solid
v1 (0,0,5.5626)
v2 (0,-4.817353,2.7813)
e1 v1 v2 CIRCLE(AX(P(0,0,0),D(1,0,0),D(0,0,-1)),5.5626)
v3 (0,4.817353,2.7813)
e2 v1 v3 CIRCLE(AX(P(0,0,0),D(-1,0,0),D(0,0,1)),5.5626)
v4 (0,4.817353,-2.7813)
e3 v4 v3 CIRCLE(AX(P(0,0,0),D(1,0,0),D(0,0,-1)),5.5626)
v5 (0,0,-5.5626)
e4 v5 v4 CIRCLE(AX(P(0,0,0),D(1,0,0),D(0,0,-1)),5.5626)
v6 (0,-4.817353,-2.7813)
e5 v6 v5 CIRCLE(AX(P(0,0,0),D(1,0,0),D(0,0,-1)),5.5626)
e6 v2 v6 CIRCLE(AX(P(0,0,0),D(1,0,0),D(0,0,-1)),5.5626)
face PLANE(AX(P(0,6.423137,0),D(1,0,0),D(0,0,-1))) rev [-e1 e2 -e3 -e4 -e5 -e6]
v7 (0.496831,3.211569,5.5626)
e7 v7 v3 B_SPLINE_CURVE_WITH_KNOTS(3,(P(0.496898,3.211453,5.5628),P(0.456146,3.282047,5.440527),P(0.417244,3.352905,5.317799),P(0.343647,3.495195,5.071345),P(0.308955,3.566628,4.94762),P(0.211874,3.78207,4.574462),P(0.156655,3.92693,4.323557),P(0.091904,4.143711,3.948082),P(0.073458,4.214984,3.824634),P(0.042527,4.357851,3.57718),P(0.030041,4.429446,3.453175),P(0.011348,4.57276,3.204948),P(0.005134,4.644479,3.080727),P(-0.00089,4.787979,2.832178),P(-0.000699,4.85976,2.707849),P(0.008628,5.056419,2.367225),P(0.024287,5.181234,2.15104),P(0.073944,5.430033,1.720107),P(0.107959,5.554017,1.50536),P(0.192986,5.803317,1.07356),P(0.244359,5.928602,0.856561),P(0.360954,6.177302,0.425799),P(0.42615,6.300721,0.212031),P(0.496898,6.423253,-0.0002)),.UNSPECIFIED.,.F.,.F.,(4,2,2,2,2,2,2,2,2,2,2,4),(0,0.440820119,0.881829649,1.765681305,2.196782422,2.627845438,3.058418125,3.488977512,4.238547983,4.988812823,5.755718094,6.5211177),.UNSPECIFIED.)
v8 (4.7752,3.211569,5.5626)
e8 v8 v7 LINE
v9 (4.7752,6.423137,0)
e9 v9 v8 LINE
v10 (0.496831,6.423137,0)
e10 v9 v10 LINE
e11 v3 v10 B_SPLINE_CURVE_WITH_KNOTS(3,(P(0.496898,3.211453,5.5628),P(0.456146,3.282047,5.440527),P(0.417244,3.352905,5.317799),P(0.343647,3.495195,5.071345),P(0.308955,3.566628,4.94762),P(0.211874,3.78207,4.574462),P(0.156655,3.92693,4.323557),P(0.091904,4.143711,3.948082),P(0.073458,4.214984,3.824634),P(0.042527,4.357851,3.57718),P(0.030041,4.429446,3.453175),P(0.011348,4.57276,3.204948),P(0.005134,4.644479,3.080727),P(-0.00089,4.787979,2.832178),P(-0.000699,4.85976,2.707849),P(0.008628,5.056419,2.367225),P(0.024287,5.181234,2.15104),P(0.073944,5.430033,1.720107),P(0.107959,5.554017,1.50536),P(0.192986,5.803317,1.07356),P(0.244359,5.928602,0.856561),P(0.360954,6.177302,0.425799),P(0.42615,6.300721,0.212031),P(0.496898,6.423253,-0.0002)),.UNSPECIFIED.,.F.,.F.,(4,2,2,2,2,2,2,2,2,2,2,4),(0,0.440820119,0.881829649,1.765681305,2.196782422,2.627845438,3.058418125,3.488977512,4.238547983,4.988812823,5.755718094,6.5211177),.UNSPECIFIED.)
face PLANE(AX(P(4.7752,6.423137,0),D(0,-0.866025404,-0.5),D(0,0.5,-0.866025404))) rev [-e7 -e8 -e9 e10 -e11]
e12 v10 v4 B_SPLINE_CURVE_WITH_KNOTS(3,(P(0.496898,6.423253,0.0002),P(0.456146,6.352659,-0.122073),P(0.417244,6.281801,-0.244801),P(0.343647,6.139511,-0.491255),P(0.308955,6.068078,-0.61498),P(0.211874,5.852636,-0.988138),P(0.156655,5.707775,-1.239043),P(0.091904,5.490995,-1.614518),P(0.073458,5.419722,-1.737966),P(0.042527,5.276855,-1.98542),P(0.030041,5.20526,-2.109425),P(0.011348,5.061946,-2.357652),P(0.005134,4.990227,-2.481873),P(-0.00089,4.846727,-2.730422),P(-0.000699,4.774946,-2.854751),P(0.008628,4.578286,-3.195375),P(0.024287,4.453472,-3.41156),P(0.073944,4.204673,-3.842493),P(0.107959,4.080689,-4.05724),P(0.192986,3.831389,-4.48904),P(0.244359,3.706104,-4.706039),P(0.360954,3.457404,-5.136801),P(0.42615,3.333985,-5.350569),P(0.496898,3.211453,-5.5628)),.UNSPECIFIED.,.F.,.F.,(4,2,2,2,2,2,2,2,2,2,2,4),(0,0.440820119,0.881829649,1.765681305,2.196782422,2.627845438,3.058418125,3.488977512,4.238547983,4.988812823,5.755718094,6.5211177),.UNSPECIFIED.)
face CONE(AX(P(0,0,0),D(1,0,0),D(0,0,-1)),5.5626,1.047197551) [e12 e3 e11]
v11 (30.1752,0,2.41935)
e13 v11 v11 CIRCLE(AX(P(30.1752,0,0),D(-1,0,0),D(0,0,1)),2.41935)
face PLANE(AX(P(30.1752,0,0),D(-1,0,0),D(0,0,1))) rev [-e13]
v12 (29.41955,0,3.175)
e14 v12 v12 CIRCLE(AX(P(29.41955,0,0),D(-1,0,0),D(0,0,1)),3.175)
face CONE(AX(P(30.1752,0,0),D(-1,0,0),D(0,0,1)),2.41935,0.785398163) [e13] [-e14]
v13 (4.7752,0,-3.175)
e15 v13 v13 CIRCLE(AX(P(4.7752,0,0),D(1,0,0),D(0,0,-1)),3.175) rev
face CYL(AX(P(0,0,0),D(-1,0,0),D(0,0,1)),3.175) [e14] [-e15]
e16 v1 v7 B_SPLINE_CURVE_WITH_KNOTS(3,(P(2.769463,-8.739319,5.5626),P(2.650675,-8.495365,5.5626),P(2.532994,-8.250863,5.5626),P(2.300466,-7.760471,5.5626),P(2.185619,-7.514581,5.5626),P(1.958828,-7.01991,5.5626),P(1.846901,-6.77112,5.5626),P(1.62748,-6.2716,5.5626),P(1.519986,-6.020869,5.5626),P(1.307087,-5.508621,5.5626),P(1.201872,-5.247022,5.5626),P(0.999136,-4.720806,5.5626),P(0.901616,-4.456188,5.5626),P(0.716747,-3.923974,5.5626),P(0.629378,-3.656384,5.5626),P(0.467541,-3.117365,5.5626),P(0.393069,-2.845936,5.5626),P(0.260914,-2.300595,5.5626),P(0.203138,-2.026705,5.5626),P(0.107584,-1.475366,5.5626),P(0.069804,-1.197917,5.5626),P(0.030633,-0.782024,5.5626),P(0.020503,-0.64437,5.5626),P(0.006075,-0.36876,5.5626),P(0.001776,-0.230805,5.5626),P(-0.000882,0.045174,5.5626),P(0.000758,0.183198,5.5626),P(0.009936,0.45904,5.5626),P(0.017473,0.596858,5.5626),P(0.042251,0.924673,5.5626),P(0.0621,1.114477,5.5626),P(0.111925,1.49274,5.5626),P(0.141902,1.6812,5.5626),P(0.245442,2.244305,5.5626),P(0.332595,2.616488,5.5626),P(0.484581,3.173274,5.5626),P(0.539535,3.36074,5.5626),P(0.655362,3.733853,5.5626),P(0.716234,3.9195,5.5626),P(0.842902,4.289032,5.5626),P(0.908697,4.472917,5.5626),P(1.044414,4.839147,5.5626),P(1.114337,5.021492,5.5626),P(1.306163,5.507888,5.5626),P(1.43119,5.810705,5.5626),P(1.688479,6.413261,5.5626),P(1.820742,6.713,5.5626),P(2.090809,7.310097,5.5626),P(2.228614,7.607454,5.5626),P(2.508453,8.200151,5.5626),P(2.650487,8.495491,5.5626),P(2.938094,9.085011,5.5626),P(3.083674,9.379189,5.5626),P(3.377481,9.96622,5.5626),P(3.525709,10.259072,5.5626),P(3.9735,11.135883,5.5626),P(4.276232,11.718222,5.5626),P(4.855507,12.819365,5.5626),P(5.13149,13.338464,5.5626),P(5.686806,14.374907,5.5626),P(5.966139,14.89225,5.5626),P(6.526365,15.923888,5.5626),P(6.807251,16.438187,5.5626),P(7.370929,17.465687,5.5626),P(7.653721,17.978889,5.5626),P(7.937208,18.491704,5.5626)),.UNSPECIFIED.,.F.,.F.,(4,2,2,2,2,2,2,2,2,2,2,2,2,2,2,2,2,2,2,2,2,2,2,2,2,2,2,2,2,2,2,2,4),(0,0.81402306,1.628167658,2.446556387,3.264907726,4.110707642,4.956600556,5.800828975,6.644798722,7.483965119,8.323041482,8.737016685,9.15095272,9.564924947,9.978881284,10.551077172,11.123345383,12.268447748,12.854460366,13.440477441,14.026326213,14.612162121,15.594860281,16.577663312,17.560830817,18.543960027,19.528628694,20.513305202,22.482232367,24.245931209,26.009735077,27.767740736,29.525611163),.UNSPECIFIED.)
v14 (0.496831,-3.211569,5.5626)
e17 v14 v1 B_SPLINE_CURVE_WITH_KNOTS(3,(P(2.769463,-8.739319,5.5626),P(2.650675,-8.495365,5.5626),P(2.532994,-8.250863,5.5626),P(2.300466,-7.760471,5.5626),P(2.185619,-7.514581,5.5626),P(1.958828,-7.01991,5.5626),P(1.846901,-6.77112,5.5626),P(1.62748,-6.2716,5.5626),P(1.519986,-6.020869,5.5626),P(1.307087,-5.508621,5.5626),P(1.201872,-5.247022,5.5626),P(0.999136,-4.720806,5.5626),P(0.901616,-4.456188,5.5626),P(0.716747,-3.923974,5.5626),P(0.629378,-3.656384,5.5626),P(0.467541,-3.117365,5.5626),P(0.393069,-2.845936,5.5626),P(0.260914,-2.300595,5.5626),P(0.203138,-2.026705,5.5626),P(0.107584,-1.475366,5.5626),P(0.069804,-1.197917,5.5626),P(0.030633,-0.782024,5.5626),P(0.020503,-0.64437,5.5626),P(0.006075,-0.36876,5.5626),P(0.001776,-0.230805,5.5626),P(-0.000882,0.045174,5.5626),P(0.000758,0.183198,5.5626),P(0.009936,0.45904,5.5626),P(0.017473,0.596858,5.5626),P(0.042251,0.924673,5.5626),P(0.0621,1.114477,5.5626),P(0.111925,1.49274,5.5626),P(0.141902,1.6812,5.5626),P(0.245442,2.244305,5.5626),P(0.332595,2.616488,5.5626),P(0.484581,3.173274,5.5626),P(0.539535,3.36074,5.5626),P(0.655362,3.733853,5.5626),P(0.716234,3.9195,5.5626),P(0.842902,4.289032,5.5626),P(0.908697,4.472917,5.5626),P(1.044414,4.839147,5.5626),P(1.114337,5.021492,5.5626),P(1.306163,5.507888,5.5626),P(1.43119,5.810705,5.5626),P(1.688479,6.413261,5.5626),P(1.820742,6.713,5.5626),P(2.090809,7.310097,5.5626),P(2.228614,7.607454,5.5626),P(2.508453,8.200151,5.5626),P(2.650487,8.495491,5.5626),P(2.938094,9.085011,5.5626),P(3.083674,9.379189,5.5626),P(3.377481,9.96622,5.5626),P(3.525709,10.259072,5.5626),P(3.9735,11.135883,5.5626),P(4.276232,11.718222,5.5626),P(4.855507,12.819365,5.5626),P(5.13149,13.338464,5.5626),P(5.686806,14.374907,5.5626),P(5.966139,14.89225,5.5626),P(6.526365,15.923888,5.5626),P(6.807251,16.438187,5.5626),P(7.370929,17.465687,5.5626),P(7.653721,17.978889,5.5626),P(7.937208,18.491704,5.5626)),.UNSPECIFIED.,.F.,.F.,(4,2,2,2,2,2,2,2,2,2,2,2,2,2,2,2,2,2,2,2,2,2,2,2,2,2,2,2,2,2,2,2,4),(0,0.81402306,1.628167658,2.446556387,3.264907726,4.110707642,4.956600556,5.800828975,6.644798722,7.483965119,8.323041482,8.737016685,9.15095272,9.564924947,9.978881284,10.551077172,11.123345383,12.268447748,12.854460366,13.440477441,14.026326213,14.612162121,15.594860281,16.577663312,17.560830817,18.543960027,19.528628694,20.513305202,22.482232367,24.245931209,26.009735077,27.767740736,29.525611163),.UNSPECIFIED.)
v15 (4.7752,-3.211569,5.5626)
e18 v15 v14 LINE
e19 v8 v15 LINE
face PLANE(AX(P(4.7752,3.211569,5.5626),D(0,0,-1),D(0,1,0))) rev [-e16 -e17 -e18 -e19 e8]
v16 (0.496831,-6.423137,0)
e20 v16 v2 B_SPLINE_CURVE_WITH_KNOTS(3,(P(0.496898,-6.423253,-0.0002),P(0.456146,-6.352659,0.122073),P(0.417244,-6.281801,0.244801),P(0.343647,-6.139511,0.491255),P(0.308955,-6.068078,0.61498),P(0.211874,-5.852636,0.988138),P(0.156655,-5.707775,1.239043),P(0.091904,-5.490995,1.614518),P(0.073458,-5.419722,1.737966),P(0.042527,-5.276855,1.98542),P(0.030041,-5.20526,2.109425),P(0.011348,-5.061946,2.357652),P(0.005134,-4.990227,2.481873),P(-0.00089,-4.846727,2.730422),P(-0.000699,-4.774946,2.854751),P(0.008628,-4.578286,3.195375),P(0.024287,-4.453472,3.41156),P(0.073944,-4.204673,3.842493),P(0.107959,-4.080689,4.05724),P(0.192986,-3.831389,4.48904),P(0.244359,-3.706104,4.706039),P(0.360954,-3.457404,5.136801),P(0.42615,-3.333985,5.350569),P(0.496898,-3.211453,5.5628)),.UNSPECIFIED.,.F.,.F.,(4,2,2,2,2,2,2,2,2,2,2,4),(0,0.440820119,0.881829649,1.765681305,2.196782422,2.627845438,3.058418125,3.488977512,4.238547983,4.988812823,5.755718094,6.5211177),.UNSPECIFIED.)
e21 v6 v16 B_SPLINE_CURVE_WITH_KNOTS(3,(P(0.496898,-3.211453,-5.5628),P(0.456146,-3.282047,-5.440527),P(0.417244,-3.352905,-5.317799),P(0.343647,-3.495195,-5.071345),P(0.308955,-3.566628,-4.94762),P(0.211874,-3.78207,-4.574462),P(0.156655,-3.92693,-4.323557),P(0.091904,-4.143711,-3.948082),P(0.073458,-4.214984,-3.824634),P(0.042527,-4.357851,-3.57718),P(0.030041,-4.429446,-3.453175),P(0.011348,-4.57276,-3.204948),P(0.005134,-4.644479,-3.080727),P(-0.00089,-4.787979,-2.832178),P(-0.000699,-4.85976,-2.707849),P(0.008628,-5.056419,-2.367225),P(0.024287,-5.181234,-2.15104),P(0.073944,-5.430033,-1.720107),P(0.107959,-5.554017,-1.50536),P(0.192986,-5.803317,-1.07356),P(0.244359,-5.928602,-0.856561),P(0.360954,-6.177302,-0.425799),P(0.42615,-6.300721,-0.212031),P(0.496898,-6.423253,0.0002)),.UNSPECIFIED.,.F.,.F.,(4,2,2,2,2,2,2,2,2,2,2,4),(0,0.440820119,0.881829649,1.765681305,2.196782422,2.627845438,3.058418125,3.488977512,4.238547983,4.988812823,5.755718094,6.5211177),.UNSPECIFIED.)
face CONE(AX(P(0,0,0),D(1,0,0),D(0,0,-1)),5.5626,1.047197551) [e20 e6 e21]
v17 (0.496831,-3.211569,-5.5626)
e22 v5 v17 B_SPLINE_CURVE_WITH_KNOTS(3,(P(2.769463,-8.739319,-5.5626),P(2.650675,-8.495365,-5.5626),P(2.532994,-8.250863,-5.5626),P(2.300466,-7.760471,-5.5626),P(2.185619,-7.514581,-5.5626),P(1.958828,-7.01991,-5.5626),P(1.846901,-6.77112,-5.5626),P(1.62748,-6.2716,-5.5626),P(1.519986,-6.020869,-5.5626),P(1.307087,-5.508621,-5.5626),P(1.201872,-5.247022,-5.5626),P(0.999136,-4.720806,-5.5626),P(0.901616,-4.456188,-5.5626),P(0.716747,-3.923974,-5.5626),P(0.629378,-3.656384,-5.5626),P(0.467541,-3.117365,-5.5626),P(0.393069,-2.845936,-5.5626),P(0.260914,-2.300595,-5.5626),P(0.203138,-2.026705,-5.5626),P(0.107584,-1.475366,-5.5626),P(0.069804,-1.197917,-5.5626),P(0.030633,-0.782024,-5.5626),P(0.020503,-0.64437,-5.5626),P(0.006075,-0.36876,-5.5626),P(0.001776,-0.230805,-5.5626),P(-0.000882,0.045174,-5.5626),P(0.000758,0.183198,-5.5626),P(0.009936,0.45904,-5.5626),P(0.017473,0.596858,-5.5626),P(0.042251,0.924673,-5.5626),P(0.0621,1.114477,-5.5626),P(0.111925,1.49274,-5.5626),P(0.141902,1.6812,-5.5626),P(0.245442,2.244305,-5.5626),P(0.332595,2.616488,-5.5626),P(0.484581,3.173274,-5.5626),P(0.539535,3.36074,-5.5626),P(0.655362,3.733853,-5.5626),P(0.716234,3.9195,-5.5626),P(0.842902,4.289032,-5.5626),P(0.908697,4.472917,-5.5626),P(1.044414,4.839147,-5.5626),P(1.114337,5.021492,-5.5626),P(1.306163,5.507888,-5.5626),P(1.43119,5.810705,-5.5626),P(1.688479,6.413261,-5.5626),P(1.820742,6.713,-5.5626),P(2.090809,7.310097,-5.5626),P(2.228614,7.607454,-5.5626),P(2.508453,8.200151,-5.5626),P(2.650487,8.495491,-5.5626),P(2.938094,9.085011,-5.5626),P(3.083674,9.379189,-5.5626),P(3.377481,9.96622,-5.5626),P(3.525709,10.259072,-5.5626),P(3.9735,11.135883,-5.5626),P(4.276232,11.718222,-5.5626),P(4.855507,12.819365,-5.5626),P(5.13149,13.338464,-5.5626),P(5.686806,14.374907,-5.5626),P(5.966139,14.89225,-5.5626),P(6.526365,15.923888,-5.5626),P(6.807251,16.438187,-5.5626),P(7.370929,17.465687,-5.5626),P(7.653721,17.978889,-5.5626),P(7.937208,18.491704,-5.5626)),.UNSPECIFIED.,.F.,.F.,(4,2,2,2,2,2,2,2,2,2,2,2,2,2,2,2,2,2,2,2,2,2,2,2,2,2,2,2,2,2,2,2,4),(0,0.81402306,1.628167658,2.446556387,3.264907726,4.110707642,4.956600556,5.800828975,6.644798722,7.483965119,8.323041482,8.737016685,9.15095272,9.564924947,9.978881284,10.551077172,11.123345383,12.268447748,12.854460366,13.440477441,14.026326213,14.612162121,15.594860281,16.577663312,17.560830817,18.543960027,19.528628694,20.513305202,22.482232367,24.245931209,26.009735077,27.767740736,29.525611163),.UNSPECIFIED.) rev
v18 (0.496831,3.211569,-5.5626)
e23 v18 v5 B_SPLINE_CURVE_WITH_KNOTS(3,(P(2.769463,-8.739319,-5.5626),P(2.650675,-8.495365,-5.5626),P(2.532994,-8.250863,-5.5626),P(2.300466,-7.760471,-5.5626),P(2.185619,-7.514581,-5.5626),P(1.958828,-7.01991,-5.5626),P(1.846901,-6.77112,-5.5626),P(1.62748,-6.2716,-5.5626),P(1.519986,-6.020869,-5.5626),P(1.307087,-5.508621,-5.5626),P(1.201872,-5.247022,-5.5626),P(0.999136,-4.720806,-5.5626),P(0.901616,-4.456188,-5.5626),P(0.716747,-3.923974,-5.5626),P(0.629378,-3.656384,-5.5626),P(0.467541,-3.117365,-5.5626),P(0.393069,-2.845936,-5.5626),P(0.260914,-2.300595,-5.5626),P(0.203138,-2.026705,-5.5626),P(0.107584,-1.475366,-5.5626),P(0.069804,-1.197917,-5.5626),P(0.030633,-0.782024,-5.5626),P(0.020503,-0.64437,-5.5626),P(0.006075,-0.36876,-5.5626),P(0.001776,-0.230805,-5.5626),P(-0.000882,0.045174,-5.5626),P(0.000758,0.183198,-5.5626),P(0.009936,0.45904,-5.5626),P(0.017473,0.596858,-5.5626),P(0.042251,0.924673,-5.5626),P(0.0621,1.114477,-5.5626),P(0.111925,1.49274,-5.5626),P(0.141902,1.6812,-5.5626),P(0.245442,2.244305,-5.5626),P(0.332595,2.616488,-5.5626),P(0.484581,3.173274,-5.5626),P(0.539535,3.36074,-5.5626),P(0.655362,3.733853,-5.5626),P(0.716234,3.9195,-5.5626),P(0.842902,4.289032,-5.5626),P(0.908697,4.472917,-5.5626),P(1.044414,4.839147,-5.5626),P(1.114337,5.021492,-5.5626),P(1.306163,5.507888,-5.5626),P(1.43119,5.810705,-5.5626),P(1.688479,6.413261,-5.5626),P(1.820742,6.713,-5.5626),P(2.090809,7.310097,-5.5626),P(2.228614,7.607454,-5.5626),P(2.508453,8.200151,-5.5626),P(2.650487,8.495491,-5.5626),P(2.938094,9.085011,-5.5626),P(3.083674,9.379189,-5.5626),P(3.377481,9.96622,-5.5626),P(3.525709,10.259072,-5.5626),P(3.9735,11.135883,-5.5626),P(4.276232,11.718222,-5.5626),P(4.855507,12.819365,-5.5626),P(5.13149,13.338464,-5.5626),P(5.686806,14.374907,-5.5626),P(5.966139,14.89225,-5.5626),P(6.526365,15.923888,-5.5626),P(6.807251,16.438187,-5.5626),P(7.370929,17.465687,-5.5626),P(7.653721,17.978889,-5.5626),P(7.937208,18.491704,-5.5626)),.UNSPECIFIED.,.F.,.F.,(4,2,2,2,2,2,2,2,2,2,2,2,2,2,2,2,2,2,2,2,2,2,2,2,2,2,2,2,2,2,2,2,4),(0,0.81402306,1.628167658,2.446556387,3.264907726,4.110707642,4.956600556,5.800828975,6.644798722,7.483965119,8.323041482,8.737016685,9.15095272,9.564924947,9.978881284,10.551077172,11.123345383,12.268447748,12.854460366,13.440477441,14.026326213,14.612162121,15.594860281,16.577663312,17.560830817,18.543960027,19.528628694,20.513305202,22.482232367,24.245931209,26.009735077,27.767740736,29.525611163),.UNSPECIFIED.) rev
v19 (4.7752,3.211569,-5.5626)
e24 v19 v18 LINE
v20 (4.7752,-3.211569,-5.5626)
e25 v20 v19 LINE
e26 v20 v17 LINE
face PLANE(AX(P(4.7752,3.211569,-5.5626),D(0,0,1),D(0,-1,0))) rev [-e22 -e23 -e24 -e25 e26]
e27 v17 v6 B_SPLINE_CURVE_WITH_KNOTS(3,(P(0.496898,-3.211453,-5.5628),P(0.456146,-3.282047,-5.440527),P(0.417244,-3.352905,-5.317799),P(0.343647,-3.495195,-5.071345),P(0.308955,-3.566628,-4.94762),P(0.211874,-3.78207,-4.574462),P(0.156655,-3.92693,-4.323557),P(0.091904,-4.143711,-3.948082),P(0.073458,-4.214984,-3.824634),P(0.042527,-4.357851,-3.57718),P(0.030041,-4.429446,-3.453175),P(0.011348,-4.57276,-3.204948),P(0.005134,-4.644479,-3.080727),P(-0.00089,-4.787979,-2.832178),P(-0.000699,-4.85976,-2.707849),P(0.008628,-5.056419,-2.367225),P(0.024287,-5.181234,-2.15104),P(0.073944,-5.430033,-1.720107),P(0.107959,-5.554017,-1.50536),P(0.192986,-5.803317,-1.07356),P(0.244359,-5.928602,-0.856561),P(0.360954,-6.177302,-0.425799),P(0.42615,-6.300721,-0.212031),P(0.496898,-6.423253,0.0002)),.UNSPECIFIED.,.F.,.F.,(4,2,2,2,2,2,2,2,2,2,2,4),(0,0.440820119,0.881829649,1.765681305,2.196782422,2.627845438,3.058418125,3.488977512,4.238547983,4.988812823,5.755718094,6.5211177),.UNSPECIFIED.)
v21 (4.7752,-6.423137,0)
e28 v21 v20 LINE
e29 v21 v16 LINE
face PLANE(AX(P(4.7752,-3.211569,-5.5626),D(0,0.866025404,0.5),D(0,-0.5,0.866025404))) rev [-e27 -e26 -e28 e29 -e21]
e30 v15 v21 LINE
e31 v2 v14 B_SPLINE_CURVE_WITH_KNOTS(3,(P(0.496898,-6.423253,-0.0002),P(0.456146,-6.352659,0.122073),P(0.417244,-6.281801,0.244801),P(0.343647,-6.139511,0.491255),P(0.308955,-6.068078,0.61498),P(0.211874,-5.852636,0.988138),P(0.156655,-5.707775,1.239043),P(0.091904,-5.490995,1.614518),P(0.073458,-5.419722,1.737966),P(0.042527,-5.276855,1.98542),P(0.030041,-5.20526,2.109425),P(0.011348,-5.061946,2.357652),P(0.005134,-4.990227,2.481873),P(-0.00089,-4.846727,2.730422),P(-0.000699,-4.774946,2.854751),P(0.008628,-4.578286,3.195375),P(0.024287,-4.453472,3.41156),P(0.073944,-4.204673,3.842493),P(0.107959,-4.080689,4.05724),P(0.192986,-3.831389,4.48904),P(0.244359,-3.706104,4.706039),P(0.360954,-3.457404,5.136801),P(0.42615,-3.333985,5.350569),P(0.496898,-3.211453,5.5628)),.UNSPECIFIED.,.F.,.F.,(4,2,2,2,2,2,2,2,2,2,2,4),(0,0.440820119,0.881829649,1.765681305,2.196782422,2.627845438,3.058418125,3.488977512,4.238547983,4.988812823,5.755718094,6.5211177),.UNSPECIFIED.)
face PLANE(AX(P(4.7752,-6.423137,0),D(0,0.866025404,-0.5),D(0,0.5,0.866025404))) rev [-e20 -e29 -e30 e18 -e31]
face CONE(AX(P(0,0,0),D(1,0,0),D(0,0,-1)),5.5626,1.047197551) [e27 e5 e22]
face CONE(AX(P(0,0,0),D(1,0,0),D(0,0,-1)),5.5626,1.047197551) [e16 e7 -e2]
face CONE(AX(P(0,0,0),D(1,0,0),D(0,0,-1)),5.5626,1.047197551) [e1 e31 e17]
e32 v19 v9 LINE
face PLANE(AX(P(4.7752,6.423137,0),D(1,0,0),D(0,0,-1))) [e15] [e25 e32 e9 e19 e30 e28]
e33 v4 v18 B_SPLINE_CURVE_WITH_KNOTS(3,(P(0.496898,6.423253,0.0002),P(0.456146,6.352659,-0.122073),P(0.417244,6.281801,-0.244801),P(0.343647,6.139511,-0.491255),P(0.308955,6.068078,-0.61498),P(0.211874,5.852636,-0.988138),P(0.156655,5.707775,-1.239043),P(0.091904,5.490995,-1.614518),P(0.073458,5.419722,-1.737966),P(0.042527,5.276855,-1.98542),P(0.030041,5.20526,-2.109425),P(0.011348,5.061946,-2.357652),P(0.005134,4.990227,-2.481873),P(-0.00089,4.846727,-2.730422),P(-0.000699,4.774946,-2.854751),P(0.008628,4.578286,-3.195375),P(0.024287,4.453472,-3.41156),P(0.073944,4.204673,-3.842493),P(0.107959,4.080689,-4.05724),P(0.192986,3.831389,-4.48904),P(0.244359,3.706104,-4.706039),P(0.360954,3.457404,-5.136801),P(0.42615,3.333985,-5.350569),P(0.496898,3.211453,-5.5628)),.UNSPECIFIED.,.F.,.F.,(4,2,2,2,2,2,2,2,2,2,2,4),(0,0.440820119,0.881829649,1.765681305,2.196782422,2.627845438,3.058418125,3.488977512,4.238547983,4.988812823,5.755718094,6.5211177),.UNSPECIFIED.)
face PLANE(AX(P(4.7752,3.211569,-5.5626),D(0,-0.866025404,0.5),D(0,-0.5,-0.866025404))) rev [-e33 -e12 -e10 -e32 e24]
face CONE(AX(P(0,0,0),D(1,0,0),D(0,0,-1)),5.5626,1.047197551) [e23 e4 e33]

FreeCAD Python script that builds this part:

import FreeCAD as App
import Part
import Sketcher
from FreeCAD import Vector
Q = App.Units.Quantity


def add_polygon(sketch, points):
    """Adds a closed chain of lines whose ends are joined by coincident constraints."""
    first, n = sketch.GeometryCount, len(points)
    for a, b in zip(points, points[1:] + points[:1]):
        sketch.addGeometry(Part.LineSegment(App.Vector(*a, 0), App.Vector(*b, 0)), False)
    for i in range(n):
        sketch.addConstraint(Sketcher.Constraint("Coincident", first + i, 2, first + (i + 1) % n, 1))

doc = App.newDocument("Part")
body = doc.addObject("PartDesign::Body", "Body")

sketch1 = body.newObject("Sketcher::SketchObject", "Sketch")
sketch1.AttachmentSupport = (doc.getObject("YZ_Plane"), [""])
sketch1.MapMode = "FlatFace"
add_polygon(sketch1, [(-3.211569, -5.5626), (3.211569, -5.5626), (6.423137, 0), (3.211569, 5.5626), (-3.211569, 5.5626), (-6.423137, 0)])
sketch1.addConstraint([
    Sketcher.Constraint("Horizontal", 0),
    Sketcher.Constraint("Horizontal", 3),
    Sketcher.Constraint("Symmetric", 0, 2, 3, 2, -1, 1),
    Sketcher.Constraint("Symmetric", 1, 2, 4, 2, -1, 1),
    Sketcher.Constraint("PointOnObject", 1, 2, -1),
    Sketcher.Constraint("Parallel", 2, 5),
    Sketcher.Constraint("Vertical", 0, 2, 2, 2),
    Sketcher.Constraint("Angle", 1, Q("60 deg")),
    Sketcher.Constraint("DistanceY", 0, 2, -1, 1, Q("0.219 in")),
    Sketcher.Constraint("DistanceX", 0, 1, 0, 2, 6.423137),
])
pad1 = body.newObject("PartDesign::Pad", "Pad")
pad1.Profile = sketch1
pad1.Length = Q("0.188 in")

sketch2 = body.newObject("Sketcher::SketchObject", "Sketch001")
sketch2.AttachmentSupport = (doc.getObject("XY_Plane"), [""])
sketch2.MapMode = "FlatFace"
add_polygon(sketch2, [(0, 0), (30.1752, 0), (30.1752, 2.41935), (29.41955, 3.175), (0, 3.175)])
sketch2.addConstraint([
    Sketcher.Constraint("Horizontal", 0),
    Sketcher.Constraint("Vertical", 1),
    Sketcher.Constraint("Horizontal", 3),
    Sketcher.Constraint("Vertical", 4),
    Sketcher.Constraint("Coincident", 4, 2, -1, 1),
    Sketcher.Constraint("Angle", 2, Q("135 deg")),
    Sketcher.Constraint("DistanceX", 0, 1, 0, 2, Q("1.188 in")),
    Sketcher.Constraint("DistanceY", 4, 2, 4, 1, Q("0.125 in")),
    Sketcher.Constraint("DistanceX", 3, 2, 3, 1, 29.41955),
])
revolution = body.newObject("PartDesign::Revolution", "Revolution")
revolution.Profile = sketch2
revolution.ReferenceAxis = (sketch2, ["H_Axis"])
revolution.Angle = 360

sketch3 = body.newObject("Sketcher::SketchObject", "Sketch002")
sketch3.AttachmentSupport = (doc.getObject("XY_Plane"), [""])
sketch3.MapMode = "FlatFace"
add_polygon(sketch3, [(0, 5.5626), (4.163006, 12.773137), (4.163006, 19.123137), (-12.7, 19.123137), (-12.7, 5.5626)])
sketch3.addConstraint([
    Sketcher.Constraint("Vertical", 1),
    Sketcher.Constraint("Horizontal", 2),
    Sketcher.Constraint("Vertical", 3),
    Sketcher.Constraint("Horizontal", 4),
    Sketcher.Constraint("PointOnObject", 4, 2, -2),
    Sketcher.Constraint("DistanceX", 4, 1, 4, 2, Q("0.5 in")),
    Sketcher.Constraint("Angle", 0, Q("60 deg")),
    Sketcher.Constraint("DistanceY", 1, 1, 1, 2, Q("0.25 in")),
    Sketcher.Constraint("DistanceY", -1, 1, 3, 2, Q("0.219 in")),
    Sketcher.Constraint("Distance", 0, 8.326011),
])
groove = body.newObject("PartDesign::Groove", "Groove")
groove.Profile = sketch3
groove.ReferenceAxis = (sketch3, ["H_Axis"])
groove.Angle = 360

doc.recompute()
